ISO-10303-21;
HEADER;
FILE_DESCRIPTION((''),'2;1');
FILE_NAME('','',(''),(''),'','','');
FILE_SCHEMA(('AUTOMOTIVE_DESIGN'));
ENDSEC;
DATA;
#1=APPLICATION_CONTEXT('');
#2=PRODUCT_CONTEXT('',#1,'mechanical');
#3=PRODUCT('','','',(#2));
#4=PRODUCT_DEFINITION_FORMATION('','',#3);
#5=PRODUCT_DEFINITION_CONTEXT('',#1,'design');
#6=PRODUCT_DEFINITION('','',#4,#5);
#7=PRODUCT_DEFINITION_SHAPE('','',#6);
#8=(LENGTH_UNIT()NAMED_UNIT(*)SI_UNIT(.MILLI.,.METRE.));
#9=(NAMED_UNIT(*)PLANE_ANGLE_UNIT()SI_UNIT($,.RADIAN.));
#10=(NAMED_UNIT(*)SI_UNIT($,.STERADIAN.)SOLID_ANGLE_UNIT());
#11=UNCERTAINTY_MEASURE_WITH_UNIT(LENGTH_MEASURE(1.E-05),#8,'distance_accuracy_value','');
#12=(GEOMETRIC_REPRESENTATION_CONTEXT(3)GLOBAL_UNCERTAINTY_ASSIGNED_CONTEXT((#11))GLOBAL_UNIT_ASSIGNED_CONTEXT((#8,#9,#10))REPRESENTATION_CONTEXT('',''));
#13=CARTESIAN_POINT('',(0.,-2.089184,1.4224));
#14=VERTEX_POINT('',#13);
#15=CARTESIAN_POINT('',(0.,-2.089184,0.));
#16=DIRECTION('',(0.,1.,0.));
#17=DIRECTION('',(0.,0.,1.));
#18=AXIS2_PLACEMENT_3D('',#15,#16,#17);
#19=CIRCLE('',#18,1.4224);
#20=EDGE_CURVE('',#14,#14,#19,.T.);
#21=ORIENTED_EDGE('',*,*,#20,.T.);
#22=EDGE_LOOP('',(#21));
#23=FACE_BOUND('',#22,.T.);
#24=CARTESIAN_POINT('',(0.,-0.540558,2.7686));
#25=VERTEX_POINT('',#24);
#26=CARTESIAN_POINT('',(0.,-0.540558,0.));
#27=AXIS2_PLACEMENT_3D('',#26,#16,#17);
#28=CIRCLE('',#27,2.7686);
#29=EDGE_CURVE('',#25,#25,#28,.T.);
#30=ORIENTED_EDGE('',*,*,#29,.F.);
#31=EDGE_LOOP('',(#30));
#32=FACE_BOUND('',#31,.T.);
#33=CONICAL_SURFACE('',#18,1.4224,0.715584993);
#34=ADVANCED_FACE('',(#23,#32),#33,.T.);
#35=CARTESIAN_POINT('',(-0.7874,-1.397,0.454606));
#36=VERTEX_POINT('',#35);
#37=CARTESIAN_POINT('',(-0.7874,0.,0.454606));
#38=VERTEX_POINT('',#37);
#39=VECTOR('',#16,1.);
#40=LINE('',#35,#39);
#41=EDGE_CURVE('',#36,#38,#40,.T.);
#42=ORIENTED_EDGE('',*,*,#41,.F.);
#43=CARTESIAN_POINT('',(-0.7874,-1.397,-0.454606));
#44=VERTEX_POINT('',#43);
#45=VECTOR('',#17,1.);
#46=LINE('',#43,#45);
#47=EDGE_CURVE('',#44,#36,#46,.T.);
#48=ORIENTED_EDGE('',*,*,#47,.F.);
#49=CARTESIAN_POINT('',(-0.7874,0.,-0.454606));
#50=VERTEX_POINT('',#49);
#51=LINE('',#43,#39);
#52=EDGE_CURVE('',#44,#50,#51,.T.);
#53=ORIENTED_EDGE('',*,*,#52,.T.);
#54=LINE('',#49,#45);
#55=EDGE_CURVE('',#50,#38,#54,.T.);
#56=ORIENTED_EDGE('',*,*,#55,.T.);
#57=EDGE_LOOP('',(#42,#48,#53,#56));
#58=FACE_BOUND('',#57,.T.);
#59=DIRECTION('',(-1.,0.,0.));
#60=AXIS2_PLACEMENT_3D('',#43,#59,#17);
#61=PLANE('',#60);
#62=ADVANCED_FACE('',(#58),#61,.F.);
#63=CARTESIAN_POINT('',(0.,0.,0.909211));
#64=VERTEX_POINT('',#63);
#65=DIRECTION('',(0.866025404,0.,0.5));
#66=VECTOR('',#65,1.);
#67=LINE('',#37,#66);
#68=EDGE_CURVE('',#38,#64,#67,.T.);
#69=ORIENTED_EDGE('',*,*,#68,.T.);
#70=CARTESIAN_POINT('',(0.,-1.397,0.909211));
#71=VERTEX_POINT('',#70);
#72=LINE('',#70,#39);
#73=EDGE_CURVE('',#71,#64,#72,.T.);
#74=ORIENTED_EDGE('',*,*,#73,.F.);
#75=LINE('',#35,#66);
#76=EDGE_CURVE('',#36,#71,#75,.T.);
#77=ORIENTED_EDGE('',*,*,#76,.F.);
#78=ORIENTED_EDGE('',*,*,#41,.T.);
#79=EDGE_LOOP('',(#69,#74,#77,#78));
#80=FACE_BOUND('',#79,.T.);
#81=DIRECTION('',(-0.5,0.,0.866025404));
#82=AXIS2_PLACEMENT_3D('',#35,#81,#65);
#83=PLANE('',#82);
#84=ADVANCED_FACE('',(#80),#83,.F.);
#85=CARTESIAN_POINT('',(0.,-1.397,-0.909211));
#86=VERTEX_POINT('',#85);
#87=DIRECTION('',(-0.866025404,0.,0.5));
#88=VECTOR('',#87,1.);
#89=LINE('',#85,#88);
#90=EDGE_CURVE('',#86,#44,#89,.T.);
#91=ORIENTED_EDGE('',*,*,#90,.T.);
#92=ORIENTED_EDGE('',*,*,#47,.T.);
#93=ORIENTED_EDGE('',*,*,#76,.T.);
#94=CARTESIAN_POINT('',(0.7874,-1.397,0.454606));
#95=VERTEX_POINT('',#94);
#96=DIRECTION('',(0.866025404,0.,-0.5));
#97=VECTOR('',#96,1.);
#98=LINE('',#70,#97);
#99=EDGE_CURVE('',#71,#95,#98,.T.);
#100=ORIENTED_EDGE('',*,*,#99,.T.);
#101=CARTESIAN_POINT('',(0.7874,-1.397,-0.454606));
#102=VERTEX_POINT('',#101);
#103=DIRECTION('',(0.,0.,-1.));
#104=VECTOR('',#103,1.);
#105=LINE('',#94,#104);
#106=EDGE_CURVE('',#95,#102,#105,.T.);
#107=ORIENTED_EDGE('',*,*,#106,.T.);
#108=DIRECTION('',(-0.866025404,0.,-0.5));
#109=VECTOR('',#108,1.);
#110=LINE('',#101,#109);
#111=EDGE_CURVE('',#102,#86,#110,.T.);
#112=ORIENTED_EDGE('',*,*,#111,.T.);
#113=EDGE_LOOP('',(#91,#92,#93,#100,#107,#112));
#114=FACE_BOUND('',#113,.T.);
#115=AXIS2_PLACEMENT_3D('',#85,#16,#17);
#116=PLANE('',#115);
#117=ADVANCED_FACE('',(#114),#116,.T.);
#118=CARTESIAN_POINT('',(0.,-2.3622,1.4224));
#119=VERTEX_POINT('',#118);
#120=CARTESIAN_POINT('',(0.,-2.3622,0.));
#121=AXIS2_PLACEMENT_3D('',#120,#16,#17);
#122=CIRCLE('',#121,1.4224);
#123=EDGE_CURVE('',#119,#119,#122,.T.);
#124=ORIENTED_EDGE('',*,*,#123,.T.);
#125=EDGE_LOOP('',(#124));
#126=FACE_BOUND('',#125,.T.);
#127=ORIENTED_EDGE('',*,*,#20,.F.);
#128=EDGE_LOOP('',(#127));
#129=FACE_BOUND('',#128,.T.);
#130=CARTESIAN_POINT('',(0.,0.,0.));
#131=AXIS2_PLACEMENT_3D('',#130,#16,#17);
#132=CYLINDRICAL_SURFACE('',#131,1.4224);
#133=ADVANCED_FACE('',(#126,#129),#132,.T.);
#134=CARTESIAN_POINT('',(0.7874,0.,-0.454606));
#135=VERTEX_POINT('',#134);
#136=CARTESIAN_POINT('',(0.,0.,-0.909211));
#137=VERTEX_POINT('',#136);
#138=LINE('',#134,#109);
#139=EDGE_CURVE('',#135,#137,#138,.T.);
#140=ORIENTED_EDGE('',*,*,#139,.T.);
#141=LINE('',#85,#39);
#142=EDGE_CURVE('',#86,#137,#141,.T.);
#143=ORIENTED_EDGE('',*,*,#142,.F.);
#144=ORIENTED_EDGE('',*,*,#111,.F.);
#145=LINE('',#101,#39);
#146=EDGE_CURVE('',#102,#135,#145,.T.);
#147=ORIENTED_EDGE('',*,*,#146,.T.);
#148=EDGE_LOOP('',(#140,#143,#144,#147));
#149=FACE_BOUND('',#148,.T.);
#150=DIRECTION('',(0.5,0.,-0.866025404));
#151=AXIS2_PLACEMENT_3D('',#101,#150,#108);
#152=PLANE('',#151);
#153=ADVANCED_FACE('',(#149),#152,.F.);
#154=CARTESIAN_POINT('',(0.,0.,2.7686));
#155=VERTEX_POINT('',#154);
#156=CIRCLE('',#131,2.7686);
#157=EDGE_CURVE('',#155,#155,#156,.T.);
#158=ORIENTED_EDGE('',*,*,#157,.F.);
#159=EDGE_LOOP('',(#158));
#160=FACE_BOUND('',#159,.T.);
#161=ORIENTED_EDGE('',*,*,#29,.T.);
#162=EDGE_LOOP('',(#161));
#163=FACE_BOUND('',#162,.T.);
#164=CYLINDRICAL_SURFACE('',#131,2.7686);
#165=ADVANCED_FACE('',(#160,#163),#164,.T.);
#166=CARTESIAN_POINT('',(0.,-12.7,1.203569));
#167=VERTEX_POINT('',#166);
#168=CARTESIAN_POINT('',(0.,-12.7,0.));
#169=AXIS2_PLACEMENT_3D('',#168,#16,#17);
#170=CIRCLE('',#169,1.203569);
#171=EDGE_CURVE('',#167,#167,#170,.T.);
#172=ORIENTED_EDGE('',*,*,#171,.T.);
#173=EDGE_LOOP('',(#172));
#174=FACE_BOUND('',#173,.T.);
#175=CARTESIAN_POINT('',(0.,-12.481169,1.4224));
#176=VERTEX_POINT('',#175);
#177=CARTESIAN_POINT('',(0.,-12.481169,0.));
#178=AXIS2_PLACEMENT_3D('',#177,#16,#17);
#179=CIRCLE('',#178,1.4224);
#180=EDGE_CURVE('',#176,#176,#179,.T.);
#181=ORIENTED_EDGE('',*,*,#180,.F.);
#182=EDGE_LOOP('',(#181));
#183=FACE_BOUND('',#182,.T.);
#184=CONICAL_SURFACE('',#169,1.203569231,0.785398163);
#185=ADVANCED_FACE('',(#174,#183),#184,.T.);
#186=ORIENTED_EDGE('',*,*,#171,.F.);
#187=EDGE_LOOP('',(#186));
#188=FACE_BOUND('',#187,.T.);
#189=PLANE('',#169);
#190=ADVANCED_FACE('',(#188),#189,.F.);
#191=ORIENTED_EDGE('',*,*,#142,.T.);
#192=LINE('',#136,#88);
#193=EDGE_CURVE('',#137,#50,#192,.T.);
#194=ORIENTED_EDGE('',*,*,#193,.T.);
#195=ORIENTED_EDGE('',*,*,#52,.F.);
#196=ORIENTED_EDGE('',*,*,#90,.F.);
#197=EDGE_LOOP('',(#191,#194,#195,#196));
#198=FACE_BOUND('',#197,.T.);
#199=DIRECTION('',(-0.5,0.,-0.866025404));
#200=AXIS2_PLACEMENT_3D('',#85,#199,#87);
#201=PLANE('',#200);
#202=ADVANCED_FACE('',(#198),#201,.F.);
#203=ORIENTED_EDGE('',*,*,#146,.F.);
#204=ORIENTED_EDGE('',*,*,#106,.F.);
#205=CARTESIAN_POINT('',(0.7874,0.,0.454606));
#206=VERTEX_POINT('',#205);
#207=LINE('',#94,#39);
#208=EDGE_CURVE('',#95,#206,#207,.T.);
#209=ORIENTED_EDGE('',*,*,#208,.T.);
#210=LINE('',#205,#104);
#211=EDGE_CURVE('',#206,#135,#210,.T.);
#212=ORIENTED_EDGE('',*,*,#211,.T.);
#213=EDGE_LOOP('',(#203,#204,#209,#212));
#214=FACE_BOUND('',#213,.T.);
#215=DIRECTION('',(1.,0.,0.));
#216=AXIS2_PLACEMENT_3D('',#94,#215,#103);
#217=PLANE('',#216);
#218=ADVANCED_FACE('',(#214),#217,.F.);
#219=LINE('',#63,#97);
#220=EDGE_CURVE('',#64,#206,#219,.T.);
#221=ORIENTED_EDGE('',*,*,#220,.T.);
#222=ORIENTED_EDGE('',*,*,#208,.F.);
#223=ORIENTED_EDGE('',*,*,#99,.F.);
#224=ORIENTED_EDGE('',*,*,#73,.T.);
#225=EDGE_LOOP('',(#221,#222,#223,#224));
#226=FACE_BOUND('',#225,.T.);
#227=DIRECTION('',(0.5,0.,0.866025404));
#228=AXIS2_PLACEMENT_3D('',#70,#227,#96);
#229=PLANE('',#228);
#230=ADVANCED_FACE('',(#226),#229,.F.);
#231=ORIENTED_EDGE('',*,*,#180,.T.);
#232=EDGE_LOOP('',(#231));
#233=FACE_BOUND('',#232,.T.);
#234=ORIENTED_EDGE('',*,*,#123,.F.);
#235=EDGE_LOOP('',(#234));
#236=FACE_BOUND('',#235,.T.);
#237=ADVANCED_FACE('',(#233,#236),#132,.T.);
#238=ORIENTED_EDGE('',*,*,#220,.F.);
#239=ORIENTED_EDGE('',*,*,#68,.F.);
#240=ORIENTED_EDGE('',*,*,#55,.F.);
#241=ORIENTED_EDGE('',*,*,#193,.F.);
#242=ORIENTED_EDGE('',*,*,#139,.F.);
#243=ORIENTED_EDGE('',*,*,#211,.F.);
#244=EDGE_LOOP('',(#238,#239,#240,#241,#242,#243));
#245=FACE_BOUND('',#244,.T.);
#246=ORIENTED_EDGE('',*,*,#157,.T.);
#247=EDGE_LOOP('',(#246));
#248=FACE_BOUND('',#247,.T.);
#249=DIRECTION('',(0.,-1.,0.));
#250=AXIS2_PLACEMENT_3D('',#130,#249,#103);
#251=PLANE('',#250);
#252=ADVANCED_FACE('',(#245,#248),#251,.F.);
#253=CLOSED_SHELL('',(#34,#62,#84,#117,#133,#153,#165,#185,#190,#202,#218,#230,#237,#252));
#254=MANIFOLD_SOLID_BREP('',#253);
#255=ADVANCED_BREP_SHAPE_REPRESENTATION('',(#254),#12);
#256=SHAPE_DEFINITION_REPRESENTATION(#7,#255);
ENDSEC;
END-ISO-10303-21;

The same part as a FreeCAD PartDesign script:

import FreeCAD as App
import Part
import Sketcher
Q = App.Units.Quantity

doc = App.newDocument("Part")
body = doc.addObject("PartDesign::Body", "Body")

# Sketch on XY plane
sketch1 = doc.addObject("Sketcher::SketchObject", "Sketch")
body.addObject(sketch1)
sketch1.AttachmentSupport = (doc.XY_Plane, [""])
sketch1.MapMode = "FlatFace"
sketch1.addGeometry(Part.LineSegment(App.Vector(0, 0, 0), App.Vector(0, -12.7, 0)), False)
sketch1.addGeometry(Part.LineSegment(App.Vector(0, -12.7, 0), App.Vector(1.2, -12.7, 0)), False)
sketch1.addGeometry(Part.LineSegment(App.Vector(1.2, -12.7, 0), App.Vector(1.42, -12.48, 0)), False)
sketch1.addGeometry(Part.LineSegment(App.Vector(1.42, -12.48, 0), App.Vector(1.42, -2.09, 0)), False)
sketch1.addGeometry(Part.LineSegment(App.Vector(1.42, -2.09, 0), App.Vector(2.77, -0.54, 0)), False)
sketch1.addGeometry(Part.LineSegment(App.Vector(2.77, -0.54, 0), App.Vector(2.77, 0, 0)), False)
sketch1.addGeometry(Part.LineSegment(App.Vector(2.77, 0, 0), App.Vector(0, 0, 0)), False)
sketch1.addConstraint(Sketcher.Constraint("Coincident", 0, 2, 1, 1))
sketch1.addConstraint(Sketcher.Constraint("Coincident", 1, 2, 2, 1))
sketch1.addConstraint(Sketcher.Constraint("Coincident", 2, 2, 3, 1))
sketch1.addConstraint(Sketcher.Constraint("Coincident", 3, 2, 4, 1))
sketch1.addConstraint(Sketcher.Constraint("Coincident", 4, 2, 5, 1))
sketch1.addConstraint(Sketcher.Constraint("Coincident", 5, 2, 6, 1))
sketch1.addConstraint(Sketcher.Constraint("Coincident", 6, 2, 0, 1))
sketch1.addConstraint(Sketcher.Constraint("Vertical", 0))
sketch1.addConstraint(Sketcher.Constraint("Horizontal", 1))
sketch1.addConstraint(Sketcher.Constraint("Vertical", 3))
sketch1.addConstraint(Sketcher.Constraint("Vertical", 5))
sketch1.addConstraint(Sketcher.Constraint("Horizontal", 6))
sketch1.addConstraint(Sketcher.Constraint("Coincident", 6, 2, -1, 1))
sketch1.addConstraint(Sketcher.Constraint("DistanceY", 0, 2, 0, 1, Q("0.5 in")))
sketch1.addConstraint(Sketcher.Constraint("Angle", 2, Q("45 deg")))
sketch1.addConstraint(Sketcher.Constraint("Angle", 4, Q("49 deg")))
sketch1.addConstraint(Sketcher.Constraint("DistanceX", 6, 2, 6, 1, Q("0.109 in")))
sketch1.addConstraint(Sketcher.Constraint("DistanceX", -1, 1, 2, 2, Q("0.056 in")))
sketch1.addConstraint(Sketcher.Constraint("DistanceX", 1, 1, 1, 2, 1.203569))
sketch1.addConstraint(Sketcher.Constraint("DistanceY", 5, 1, 5, 2, 0.540558))
revolution = doc.addObject("PartDesign::Revolution", "Revolution")
body.addObject(revolution)
revolution.Profile = sketch1
revolution.ReferenceAxis = (sketch1, ["V_Axis"])
revolution.Angle = 360

# Sketch on XZ plane
sketch2 = doc.addObject("Sketcher::SketchObject", "Sketch001")
body.addObject(sketch2)
sketch2.AttachmentSupport = (doc.XZ_Plane, [""])
sketch2.MapMode = "FlatFace"
sketch2.addGeometry(Part.LineSegment(App.Vector(0, -0.9, 0), App.Vector(-0.8, -0.5, 0)), False)
sketch2.addGeometry(Part.LineSegment(App.Vector(-0.8, -0.5, 0), App.Vector(-0.8, 0.5, 0)), False)
sketch2.addGeometry(Part.LineSegment(App.Vector(-0.8, 0.5, 0), App.Vector(0, 0.9, 0)), False)
sketch2.addGeometry(Part.LineSegment(App.Vector(0, 0.9, 0), App.Vector(0.8, 0.5, 0)), False)
sketch2.addGeometry(Part.LineSegment(App.Vector(0.8, 0.5, 0), App.Vector(0.8, -0.5, 0)), False)
sketch2.addGeometry(Part.LineSegment(App.Vector(0.8, -0.5, 0), App.Vector(0, -0.9, 0)), False)
sketch2.addConstraint(Sketcher.Constraint("Coincident", 0, 2, 1, 1))
sketch2.addConstraint(Sketcher.Constraint("Coincident", 1, 2, 2, 1))
sketch2.addConstraint(Sketcher.Constraint("Coincident", 2, 2, 3, 1))
sketch2.addConstraint(Sketcher.Constraint("Coincident", 3, 2, 4, 1))
sketch2.addConstraint(Sketcher.Constraint("Coincident", 4, 2, 5, 1))
sketch2.addConstraint(Sketcher.Constraint("Coincident", 5, 2, 0, 1))
sketch2.addConstraint(Sketcher.Constraint("Vertical", 1))
sketch2.addConstraint(Sketcher.Constraint("Vertical", 4))
sketch2.addConstraint(Sketcher.Constraint("Symmetric", 0, 2, 3, 2, -1, 1))
sketch2.addConstraint(Sketcher.Constraint("Symmetric", 2, 2, 5, 2, -1, 1))
sketch2.addConstraint(Sketcher.Constraint("PointOnObject", 2, 2, -2))
sketch2.addConstraint(Sketcher.Constraint("Parallel", 2, 5))
sketch2.addConstraint(Sketcher.Constraint("Horizontal", 1, 2, 3, 2))
sketch2.addConstraint(Sketcher.Constraint("Angle", 0, Q("150 deg")))
sketch2.addConstraint(Sketcher.Constraint("DistanceX", 0, 2, -1, 1, Q("0.031 in")))
sketch2.addConstraint(Sketcher.Constraint("DistanceY", 1, 1, 1, 2, 0.909211))
pocket1 = doc.addObject("PartDesign::Pocket", "Pocket")
body.addObject(pocket1)
pocket1.Profile = sketch2
pocket1.Length = Q("0.055 in")
pocket1.Reversed = True

doc.recompute()
